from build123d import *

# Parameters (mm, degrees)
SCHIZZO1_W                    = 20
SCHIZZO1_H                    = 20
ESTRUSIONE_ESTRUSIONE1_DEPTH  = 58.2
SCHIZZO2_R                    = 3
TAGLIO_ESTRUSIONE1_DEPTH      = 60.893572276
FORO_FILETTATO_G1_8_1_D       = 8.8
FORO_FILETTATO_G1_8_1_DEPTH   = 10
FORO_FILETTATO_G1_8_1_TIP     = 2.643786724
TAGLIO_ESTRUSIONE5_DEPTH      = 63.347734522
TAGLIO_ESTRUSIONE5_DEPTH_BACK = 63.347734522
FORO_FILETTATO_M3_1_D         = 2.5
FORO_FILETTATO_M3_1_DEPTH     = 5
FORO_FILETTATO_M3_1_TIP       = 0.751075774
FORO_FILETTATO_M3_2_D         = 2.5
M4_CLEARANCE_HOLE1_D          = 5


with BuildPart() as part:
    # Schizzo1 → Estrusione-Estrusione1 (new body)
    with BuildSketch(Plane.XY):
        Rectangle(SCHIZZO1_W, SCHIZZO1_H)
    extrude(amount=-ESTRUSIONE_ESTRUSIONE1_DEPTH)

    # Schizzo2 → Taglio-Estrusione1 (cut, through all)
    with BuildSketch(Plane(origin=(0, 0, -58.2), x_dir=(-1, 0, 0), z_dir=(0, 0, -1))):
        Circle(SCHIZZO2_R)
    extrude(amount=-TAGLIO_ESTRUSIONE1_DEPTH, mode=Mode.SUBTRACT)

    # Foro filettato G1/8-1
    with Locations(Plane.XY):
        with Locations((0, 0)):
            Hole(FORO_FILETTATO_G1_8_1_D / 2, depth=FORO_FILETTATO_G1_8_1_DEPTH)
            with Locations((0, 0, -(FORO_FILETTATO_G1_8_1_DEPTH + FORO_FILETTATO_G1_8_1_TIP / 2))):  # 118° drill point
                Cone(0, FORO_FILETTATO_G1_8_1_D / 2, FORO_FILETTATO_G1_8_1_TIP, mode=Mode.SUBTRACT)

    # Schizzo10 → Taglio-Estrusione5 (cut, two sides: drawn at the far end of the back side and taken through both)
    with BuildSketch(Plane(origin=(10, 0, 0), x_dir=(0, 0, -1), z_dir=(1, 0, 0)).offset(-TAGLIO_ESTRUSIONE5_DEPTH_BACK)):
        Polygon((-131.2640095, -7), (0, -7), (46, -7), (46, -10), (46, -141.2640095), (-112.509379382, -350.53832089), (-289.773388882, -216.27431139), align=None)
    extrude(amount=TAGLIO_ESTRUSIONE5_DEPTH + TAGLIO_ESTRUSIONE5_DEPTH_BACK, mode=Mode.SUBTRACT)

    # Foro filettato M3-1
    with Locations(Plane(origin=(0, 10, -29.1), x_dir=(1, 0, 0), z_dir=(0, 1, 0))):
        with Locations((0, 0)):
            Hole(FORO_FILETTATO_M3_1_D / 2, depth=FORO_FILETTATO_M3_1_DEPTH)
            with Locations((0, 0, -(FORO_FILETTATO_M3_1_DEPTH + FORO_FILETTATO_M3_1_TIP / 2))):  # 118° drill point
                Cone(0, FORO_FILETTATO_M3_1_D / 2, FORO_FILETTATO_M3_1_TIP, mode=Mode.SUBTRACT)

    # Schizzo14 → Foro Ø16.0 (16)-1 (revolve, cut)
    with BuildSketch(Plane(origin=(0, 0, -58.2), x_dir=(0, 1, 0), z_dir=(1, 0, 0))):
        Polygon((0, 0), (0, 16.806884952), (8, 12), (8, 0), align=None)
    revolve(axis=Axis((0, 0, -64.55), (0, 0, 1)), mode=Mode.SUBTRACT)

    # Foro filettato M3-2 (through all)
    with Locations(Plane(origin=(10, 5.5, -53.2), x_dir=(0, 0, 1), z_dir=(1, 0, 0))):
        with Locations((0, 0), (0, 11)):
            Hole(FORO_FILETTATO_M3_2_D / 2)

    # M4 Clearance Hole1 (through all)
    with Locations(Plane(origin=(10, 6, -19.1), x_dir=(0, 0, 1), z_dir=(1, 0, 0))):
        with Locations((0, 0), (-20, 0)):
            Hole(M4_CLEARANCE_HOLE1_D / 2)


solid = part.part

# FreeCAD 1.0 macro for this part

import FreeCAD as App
import Part
import Sketcher

V = App.Vector
Q = App.Units.Quantity


def add_polygon(sketch, points):
    """Adds a closed chain of lines whose ends are joined by coincident constraints."""
    first, n = sketch.GeometryCount, len(points)
    for a, b in zip(points, points[1:] + points[:1]):
        sketch.addGeometry(Part.LineSegment(App.Vector(*a, 0), App.Vector(*b, 0)), False)
    for i in range(n):
        sketch.addConstraint(Sketcher.Constraint("Coincident", first + i, 2, first + (i + 1) % n, 1))

doc = App.newDocument("Part")
body = doc.addObject("PartDesign::Body", "Body")

sketch1 = body.newObject("Sketcher::SketchObject", "Sketch")
sketch1.AttachmentSupport = (doc.getObject("XY_Plane"), [""])
sketch1.MapMode = "FlatFace"
add_polygon(sketch1, [(-10, 10), (-10, -10), (10, -10), (10, 10)])
sketch1.addConstraint(Sketcher.Constraint("Vertical", 0))
sketch1.addConstraint(Sketcher.Constraint("Horizontal", 1))
sketch1.addConstraint(Sketcher.Constraint("Vertical", 2))
sketch1.addConstraint(Sketcher.Constraint("Horizontal", 3))
sketch1.addConstraint(Sketcher.Constraint("Symmetric", 0, 2, 2, 2, -1, 1))
sketch1.addConstraint(Sketcher.Constraint("Equal", 3, 0))
sketch1.addConstraint(Sketcher.Constraint("DistanceX", 1, 1, 1, 2, 20.0))
pad1 = body.newObject("PartDesign::Pad", "Pad")
pad1.Profile = sketch1
pad1.Length = 58.2
pad1.Reversed = True

sketch2 = body.newObject("Sketcher::SketchObject", "Sketch001")
sketch2.AttachmentSupport = (doc.getObject("XY_Plane"), [""])
sketch2.MapMode = "FlatFace"
sketch2.AttachmentOffset = App.Placement(V(0, 0, -58.2), App.Rotation())
sketch2.addGeometry(Part.Circle(V(0, 0, 0), V(0, 0, 1), 3), False)
sketch2.addConstraint(Sketcher.Constraint("Coincident", 0, 3, -1, 1))
sketch2.addConstraint(Sketcher.Constraint("Diameter", 0, 6.0))
pocket1 = body.newObject("PartDesign::Pocket", "Pocket")
pocket1.Profile = sketch2
pocket1.Type = "ThroughAll"
pocket1.Reversed = True

sketch3 = body.newObject("Sketcher::SketchObject", "Sketch002")
sketch3.AttachmentSupport = (doc.getObject("XY_Plane"), [""])
sketch3.MapMode = "FlatFace"
sketch3.addGeometry(Part.Circle(V(0, 0, 0), V(0, 0, 1), 4.4), False)
sketch3.addConstraint(Sketcher.Constraint("Coincident", 0, 3, -1, 1))
sketch3.addConstraint(Sketcher.Constraint("Diameter", 0, 8.8))
doc.recompute()
hole = body.newObject("PartDesign::Hole", "Hole")
hole.Profile = sketch3
hole.ThreadType = "None"
hole.Diameter = 8.8
hole.DepthType = "Dimension"
hole.Depth = 10
hole.DrillPoint = "Angled"
hole.DrillPointAngle = 118

sketch4 = body.newObject("Sketcher::SketchObject", "Sketch003")
sketch4.AttachmentSupport = (doc.getObject("YZ_Plane"), [""])
sketch4.MapMode = "FlatFace"
sketch4.AttachmentOffset = App.Placement(V(0, 0, 10), App.Rotation())
add_polygon(sketch4, [(-7, -46), (-7, 131), (-216, 290), (-351, 113), (-141, -46)])
sketch4.addConstraint(Sketcher.Constraint("Vertical", 0))
sketch4.addConstraint(Sketcher.Constraint("Horizontal", 4))
sketch4.addConstraint(Sketcher.Constraint("Perpendicular", 1, 2))
sketch4.addConstraint(Sketcher.Constraint("Perpendicular", 2, 3))
sketch4.addConstraint(Sketcher.Constraint("Equal", 1, 3))
sketch4.addConstraint(Sketcher.Constraint("DistanceX", 0, 2, -1, 1, 7.0))
sketch4.addConstraint(Sketcher.Constraint("DistanceY", 3, 2, -1, 1, 46.0))
sketch4.addConstraint(Sketcher.Constraint("DistanceX", 4, 1, 4, 2, 134.264009))
sketch4.addConstraint(Sketcher.Constraint("DistanceY", 0, 1, 0, 2, 177.264009))
sketch4.addConstraint(Sketcher.Constraint("DistanceX", 1, 2, 3, 2, 75.010302))
pocket2 = body.newObject("PartDesign::Pocket", "Pocket001")
pocket2.Profile = sketch4
pocket2.Type = "ThroughAll"
pocket2.Midplane = True

sketch5 = body.newObject("Sketcher::SketchObject", "Sketch004")
sketch5.AttachmentSupport = (doc.getObject("XZ_Plane"), [""])
sketch5.MapMode = "FlatFace"
sketch5.AttachmentOffset = App.Placement(V(0, 0, -10), App.Rotation())
sketch5.addGeometry(Part.Circle(V(0, -29.1, 0), V(0, 0, 1), 1.2), False)
sketch5.addConstraint(Sketcher.Constraint("PointOnObject", 0, 3, -2))
sketch5.addConstraint(Sketcher.Constraint("Diameter", 0, 2.5))
sketch5.addConstraint(Sketcher.Constraint("DistanceY", 0, 3, -1, 1, 29.1))
doc.recompute()
hole2 = body.newObject("PartDesign::Hole", "Hole001")
hole2.Profile = sketch5
hole2.ThreadType = "None"
hole2.Diameter = 2.5
hole2.DepthType = "Dimension"
hole2.Depth = 5
hole2.DrillPoint = "Angled"
hole2.DrillPointAngle = 118
hole2.Reversed = True

sketch6 = body.newObject("Sketcher::SketchObject", "Sketch005")
sketch6.AttachmentSupport = (doc.getObject("YZ_Plane"), [""])
sketch6.MapMode = "FlatFace"
add_polygon(sketch6, [(0, -41), (0, -58), (8, -58), (8, -46)])
sketch6.addConstraint(Sketcher.Constraint("Vertical", 0))
sketch6.addConstraint(Sketcher.Constraint("Horizontal", 1))
sketch6.addConstraint(Sketcher.Constraint("Vertical", 2))
sketch6.addConstraint(Sketcher.Constraint("PointOnObject", 0, 2, -2))
sketch6.addConstraint(Sketcher.Constraint("DistanceX", 1, 1, 1, 2, 8.0))
sketch6.addConstraint(Sketcher.Constraint("DistanceY", 2, 1, 2, 2, 12.0))
sketch6.addConstraint(Sketcher.Constraint("Angle", 3, Q("149 deg")))
sketch6.addConstraint(Sketcher.Constraint("DistanceY", 0, 2, -1, 1, 58.2))
groove = body.newObject("PartDesign::Groove", "Groove")
groove.Profile = sketch6
groove.ReferenceAxis = (sketch6, ["V_Axis"])
groove.Angle = 360

sketch7 = body.newObject("Sketcher::SketchObject", "Sketch006")
sketch7.AttachmentSupport = (doc.getObject("YZ_Plane"), [""])
sketch7.MapMode = "FlatFace"
sketch7.AttachmentOffset = App.Placement(V(0, 0, 10), App.Rotation())
sketch7.addGeometry(Part.Circle(V(5.5, -53.2, 0), V(0, 0, 1), 1.2), False)
sketch7.addGeometry(Part.Circle(V(-5.5, -53.2, 0), V(0, 0, 1), 1.2), False)
sketch7.addConstraint(Sketcher.Constraint("Equal", 0, 1))
sketch7.addConstraint(Sketcher.Constraint("Symmetric", 0, 3, 1, 3, -2))
sketch7.addConstraint(Sketcher.Constraint("Diameter", 0, 2.5))
sketch7.addConstraint(Sketcher.Constraint("DistanceX", 1, 3, 0, 3, 11.0))
sketch7.addConstraint(Sketcher.Constraint("DistanceY", 0, 3, -1, 1, 53.2))
doc.recompute()
hole3 = body.newObject("PartDesign::Hole", "Hole002")
hole3.Profile = sketch7
hole3.ThreadType = "None"
hole3.Diameter = 2.5
hole3.DepthType = "ThroughAll"

sketch8 = body.newObject("Sketcher::SketchObject", "Sketch007")
sketch8.AttachmentSupport = (doc.getObject("YZ_Plane"), [""])
sketch8.MapMode = "FlatFace"
sketch8.AttachmentOffset = App.Placement(V(0, 0, 10), App.Rotation())
sketch8.addGeometry(Part.Circle(V(6, -19.1, 0), V(0, 0, 1), 2.5), False)
sketch8.addGeometry(Part.Circle(V(6, -39.1, 0), V(0, 0, 1), 2.5), False)
sketch8.addConstraint(Sketcher.Constraint("Equal", 0, 1))
sketch8.addConstraint(Sketcher.Constraint("Vertical", 0, 3, 1, 3))
sketch8.addConstraint(Sketcher.Constraint("Diameter", 0, 5.0))
sketch8.addConstraint(Sketcher.Constraint("DistanceX", -1, 1, 0, 3, 6.0))
sketch8.addConstraint(Sketcher.Constraint("DistanceY", 1, 3, 0, 3, 20.0))
sketch8.addConstraint(Sketcher.Constraint("DistanceY", 0, 3, -1, 1, 19.1))
doc.recompute()
hole4 = body.newObject("PartDesign::Hole", "Hole003")
hole4.Profile = sketch8
hole4.ThreadType = "None"
hole4.Diameter = 5
hole4.DepthType = "ThroughAll"

doc.recompute()
